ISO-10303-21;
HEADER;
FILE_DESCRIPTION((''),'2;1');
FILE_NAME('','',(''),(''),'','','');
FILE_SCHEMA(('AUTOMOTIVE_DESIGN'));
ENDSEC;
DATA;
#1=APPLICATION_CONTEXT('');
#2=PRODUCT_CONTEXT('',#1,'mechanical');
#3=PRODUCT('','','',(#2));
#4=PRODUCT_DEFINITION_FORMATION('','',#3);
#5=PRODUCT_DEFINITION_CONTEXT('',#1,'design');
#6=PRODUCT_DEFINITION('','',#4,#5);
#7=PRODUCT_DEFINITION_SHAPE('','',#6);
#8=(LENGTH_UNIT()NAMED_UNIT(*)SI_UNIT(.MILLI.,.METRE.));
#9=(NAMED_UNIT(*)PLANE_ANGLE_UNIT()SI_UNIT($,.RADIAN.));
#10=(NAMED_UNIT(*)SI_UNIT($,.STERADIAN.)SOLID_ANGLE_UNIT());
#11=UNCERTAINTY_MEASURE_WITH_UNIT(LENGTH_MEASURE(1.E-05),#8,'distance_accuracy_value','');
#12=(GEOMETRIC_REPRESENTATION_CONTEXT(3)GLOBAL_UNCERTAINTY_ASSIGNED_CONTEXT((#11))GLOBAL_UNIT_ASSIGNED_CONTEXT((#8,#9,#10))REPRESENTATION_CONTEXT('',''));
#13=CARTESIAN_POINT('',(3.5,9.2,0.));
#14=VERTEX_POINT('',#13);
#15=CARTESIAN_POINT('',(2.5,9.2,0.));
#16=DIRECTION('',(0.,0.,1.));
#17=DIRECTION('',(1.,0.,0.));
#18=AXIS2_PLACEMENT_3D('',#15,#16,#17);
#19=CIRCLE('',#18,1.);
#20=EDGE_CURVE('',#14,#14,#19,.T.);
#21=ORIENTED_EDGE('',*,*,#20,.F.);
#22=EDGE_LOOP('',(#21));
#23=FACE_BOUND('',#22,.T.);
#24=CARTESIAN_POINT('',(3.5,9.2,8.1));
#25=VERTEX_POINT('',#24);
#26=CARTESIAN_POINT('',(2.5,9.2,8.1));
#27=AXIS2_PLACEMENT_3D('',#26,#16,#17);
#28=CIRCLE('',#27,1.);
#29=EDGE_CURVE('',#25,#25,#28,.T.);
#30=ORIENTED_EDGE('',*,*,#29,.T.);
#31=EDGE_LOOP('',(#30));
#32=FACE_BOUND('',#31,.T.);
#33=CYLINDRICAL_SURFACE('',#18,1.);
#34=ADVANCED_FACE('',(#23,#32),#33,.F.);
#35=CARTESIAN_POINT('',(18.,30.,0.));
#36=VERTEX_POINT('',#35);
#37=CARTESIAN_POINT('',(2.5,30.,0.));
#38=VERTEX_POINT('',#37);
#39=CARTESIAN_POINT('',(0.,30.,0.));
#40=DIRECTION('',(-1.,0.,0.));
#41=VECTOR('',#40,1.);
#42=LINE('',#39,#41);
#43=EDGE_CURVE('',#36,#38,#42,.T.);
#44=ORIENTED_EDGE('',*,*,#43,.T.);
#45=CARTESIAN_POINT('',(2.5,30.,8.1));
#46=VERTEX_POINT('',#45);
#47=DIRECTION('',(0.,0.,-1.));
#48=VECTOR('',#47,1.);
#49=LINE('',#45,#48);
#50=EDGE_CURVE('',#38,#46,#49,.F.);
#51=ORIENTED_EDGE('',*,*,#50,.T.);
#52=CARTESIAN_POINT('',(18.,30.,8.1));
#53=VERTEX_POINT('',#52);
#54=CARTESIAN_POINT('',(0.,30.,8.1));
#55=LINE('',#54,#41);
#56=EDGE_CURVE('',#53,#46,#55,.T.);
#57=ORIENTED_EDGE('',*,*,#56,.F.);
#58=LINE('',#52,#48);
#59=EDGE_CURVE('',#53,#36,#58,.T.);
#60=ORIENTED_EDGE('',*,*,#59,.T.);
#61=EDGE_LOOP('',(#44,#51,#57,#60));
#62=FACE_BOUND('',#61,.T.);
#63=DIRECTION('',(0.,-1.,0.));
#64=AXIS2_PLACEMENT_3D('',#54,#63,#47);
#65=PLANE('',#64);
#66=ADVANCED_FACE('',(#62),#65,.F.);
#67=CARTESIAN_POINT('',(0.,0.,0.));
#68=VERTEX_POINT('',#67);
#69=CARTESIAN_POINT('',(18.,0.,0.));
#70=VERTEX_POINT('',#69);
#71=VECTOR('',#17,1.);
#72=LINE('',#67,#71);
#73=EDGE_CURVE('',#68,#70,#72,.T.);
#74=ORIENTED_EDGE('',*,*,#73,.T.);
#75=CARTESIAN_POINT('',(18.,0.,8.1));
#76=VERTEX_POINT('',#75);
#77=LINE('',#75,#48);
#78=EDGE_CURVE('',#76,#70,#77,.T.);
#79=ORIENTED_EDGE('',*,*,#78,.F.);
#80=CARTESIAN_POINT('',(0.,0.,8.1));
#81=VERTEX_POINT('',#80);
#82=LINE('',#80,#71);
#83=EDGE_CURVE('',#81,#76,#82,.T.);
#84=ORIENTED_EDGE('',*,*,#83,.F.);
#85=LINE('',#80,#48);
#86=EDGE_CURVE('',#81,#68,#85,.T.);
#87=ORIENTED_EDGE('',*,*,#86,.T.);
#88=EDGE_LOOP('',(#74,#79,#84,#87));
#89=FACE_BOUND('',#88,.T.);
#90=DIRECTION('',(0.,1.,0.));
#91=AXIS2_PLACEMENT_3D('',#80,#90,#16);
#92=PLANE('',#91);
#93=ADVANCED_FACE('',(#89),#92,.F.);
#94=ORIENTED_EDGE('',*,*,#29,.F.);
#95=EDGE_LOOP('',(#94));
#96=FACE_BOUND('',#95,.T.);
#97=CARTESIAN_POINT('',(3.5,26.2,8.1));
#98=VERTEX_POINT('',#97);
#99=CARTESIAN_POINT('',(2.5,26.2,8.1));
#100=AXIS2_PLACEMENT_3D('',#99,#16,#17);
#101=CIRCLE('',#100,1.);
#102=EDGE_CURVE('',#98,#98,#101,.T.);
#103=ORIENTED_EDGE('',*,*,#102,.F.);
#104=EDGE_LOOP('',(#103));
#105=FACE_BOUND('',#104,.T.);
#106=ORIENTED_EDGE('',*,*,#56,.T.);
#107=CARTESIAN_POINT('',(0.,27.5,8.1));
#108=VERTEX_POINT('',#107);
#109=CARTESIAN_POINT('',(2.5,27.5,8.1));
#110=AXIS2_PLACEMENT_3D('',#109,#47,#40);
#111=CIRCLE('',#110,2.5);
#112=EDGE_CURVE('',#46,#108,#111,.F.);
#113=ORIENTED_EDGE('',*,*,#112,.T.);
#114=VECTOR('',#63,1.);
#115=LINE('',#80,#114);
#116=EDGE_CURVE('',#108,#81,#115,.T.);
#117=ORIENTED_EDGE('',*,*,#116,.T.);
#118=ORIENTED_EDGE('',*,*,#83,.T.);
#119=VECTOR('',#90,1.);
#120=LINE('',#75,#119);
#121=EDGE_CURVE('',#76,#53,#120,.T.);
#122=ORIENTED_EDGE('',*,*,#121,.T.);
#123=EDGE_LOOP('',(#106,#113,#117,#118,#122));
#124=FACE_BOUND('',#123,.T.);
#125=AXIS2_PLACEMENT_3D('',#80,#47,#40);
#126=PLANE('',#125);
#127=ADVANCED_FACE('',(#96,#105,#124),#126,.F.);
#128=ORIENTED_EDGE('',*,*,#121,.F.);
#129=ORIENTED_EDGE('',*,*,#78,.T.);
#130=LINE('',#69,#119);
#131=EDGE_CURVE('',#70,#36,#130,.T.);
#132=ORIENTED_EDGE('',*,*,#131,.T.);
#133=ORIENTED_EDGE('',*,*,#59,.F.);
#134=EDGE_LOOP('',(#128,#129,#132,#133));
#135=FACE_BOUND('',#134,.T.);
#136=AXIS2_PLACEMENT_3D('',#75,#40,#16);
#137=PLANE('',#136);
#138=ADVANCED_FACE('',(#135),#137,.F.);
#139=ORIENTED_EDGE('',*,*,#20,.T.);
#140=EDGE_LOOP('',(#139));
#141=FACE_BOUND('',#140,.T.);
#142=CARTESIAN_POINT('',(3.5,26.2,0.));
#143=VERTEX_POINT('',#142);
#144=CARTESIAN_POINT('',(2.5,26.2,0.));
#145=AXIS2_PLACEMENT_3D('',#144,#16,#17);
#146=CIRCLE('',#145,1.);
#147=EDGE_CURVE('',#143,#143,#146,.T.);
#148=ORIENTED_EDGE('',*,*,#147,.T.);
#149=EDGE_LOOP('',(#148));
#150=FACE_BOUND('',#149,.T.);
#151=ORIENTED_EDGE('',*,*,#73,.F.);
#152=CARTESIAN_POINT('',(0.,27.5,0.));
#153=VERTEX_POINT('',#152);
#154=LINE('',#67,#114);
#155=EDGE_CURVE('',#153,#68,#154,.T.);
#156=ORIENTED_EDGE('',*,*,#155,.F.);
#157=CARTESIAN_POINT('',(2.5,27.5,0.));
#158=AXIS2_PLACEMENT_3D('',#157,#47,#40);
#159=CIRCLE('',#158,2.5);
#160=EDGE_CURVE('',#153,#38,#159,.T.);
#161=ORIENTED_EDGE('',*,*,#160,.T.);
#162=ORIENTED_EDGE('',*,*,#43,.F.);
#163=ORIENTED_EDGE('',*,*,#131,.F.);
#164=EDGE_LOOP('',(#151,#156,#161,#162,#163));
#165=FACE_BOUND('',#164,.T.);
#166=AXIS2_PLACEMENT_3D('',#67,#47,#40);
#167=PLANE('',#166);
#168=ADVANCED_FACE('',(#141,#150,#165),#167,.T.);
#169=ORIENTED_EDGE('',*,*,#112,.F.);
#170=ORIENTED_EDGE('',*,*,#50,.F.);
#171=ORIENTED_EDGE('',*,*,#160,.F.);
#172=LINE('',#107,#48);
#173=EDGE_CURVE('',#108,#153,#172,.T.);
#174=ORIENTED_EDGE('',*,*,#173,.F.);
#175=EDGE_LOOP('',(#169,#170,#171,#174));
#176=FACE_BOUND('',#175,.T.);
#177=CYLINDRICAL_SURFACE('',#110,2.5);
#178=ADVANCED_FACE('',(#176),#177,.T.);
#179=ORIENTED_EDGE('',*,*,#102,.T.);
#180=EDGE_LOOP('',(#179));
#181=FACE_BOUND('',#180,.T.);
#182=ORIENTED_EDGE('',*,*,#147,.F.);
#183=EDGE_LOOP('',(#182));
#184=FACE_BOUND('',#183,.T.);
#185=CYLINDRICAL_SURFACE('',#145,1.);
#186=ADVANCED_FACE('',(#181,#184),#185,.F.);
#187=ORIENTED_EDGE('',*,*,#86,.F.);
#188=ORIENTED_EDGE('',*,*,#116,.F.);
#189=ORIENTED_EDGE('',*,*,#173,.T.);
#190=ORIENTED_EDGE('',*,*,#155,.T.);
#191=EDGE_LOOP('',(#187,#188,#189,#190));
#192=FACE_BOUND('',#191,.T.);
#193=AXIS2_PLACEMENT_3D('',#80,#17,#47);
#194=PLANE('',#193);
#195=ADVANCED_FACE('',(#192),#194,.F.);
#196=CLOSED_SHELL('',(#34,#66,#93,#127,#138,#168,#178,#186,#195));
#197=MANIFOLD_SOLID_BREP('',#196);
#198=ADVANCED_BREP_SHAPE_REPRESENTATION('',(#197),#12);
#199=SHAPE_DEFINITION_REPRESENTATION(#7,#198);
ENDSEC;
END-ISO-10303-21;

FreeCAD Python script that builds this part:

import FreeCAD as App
import Part
import Sketcher
Q = App.Units.Quantity


def edges_at(feature, points):
    """Names of the edges that pass closest to the given points."""
    edges = feature.Shape.Edges
    near = lambda p: min(range(len(edges)), key=lambda i: edges[i].distToShape(Part.Vertex(*p))[0])
    return sorted({f"Edge{near(p) + 1}" for p in points})

doc = App.newDocument("Part")
body = doc.addObject("PartDesign::Body", "Body")

sketch1 = body.newObject("Sketcher::SketchObject", "Sketch")
sketch1.AttachmentSupport = (doc.getObject("XY_Plane"), [""])
sketch1.MapMode = "FlatFace"
sketch1.addGeometry([
    Part.LineSegment(App.Vector(0, 30, 0), App.Vector(0, 0, 0)),
    Part.LineSegment(App.Vector(0, 0, 0), App.Vector(18, 0, 0)),
    Part.LineSegment(App.Vector(18, 0, 0), App.Vector(18, 30, 0)),
    Part.LineSegment(App.Vector(18, 30, 0), App.Vector(0, 30, 0)),
], False)
sketch1.addConstraint([
    Sketcher.Constraint("Coincident", 0, 2, 1, 1),
    Sketcher.Constraint("Coincident", 1, 2, 2, 1),
    Sketcher.Constraint("Coincident", 2, 2, 3, 1),
    Sketcher.Constraint("Coincident", 3, 2, 0, 1),
    Sketcher.Constraint("Vertical", 0),
    Sketcher.Constraint("Horizontal", 1),
    Sketcher.Constraint("Vertical", 2),
    Sketcher.Constraint("Horizontal", 3),
    Sketcher.Constraint("Coincident", 0, 2, -1, 1),
    Sketcher.Constraint("DistanceX", 1, 1, 1, 2, Q("18 mm")),
    Sketcher.Constraint("DistanceY", 0, 2, 0, 1, Q("30 mm")),
])
pad1 = body.newObject("PartDesign::Pad", "Pad")
pad1.Profile = sketch1
pad1.Length = 8.1

sketch2 = body.newObject("Sketcher::SketchObject", "Sketch001")
sketch2.AttachmentSupport = (doc.getObject("XY_Plane"), [""])
sketch2.MapMode = "FlatFace"
sketch2.AttachmentOffset = App.Placement(App.Vector(0, 0, 8.1), App.Rotation())
sketch2.addGeometry([
    Part.Circle(App.Vector(2.5, 26.2, 0), App.Vector(0, 0, 1), 1),
    Part.Circle(App.Vector(2.5, 9.2, 0), App.Vector(0, 0, 1), 1),
], False)
sketch2.addConstraint([
    Sketcher.Constraint("Equal", 0, 1),
    Sketcher.Constraint("Vertical", 0, 3, 1, 3),
    Sketcher.Constraint("Diameter", 0, Q("2 mm")),
    Sketcher.Constraint("DistanceY", 1, 3, 0, 3, Q("17 mm")),
    Sketcher.Constraint("DistanceX", -1, 1, 0, 3, Q("2.5 mm")),
    Sketcher.Constraint("DistanceY", -1, 1, 0, 3, Q("26.2 mm")),
])
pocket1 = body.newObject("PartDesign::Pocket", "Pocket")
pocket1.Profile = sketch2
pocket1.Type = "ThroughAll"
doc.recompute()

fillet = body.newObject("PartDesign::Fillet", "Fillet")
fillet.Base = (pocket1, edges_at(pocket1, [(0, 30, 4.05)]))
fillet.Radius = 2.5

doc.recompute()
